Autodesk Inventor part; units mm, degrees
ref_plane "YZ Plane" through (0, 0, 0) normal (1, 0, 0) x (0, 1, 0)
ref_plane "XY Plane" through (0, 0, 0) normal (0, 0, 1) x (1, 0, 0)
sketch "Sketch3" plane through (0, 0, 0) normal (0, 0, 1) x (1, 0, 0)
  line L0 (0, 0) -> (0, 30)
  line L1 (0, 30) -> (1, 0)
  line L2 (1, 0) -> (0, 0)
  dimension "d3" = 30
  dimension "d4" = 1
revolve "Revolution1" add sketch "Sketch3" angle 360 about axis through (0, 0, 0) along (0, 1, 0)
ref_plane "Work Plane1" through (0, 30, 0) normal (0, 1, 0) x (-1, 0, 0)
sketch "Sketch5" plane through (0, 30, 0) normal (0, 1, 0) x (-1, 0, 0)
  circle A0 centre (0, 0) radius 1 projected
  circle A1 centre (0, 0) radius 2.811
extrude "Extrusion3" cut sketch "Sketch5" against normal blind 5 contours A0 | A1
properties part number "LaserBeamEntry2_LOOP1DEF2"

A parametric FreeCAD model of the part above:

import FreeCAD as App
import Part
import Sketcher
from FreeCAD import Vector


def add_polygon(sketch, points):
    """Adds a closed chain of lines whose ends are joined by coincident constraints."""
    first, n = sketch.GeometryCount, len(points)
    for a, b in zip(points, points[1:] + points[:1]):
        sketch.addGeometry(Part.LineSegment(App.Vector(*a, 0), App.Vector(*b, 0)), False)
    for i in range(n):
        sketch.addConstraint(Sketcher.Constraint("Coincident", first + i, 2, first + (i + 1) % n, 1))

doc = App.newDocument("Part")
body = doc.addObject("PartDesign::Body", "Body")

sketch1 = body.newObject("Sketcher::SketchObject", "Sketch")
sketch1.AttachmentSupport = (doc.getObject("XY_Plane"), [""])
sketch1.MapMode = "FlatFace"
add_polygon(sketch1, [(0, 30), (0, 0), (1, 0)])
sketch1.addConstraint([
    Sketcher.Constraint("Vertical", 0),
    Sketcher.Constraint("Horizontal", 1),
    Sketcher.Constraint("Coincident", 0, 2, -1, 1),
    Sketcher.Constraint("DistanceX", 1, 1, 1, 2, 1.0),
    Sketcher.Constraint("DistanceY", 0, 2, 0, 1, 30.0),
])
revolution = body.newObject("PartDesign::Revolution", "Revolution")
revolution.Profile = sketch1
revolution.ReferenceAxis = (sketch1, ["V_Axis"])
revolution.Angle = 360

sketch2 = body.newObject("Sketcher::SketchObject", "Sketch001")
sketch2.AttachmentSupport = (doc.getObject("XZ_Plane"), [""])
sketch2.MapMode = "FlatFace"
sketch2.AttachmentOffset = App.Placement(Vector(0, 0, -30), App.Rotation())
sketch2.addGeometry(Part.Circle(Vector(0, 0, 0), Vector(0, 0, 1), 2.811), False)
sketch2.addConstraint([
    Sketcher.Constraint("Coincident", 0, 3, -1, 1),
    Sketcher.Constraint("Diameter", 0, 5.622),
])
pocket1 = body.newObject("PartDesign::Pocket", "Pocket")
pocket1.Profile = sketch2
pocket1.Length = 5
pocket1.Reversed = True

doc.recompute()
